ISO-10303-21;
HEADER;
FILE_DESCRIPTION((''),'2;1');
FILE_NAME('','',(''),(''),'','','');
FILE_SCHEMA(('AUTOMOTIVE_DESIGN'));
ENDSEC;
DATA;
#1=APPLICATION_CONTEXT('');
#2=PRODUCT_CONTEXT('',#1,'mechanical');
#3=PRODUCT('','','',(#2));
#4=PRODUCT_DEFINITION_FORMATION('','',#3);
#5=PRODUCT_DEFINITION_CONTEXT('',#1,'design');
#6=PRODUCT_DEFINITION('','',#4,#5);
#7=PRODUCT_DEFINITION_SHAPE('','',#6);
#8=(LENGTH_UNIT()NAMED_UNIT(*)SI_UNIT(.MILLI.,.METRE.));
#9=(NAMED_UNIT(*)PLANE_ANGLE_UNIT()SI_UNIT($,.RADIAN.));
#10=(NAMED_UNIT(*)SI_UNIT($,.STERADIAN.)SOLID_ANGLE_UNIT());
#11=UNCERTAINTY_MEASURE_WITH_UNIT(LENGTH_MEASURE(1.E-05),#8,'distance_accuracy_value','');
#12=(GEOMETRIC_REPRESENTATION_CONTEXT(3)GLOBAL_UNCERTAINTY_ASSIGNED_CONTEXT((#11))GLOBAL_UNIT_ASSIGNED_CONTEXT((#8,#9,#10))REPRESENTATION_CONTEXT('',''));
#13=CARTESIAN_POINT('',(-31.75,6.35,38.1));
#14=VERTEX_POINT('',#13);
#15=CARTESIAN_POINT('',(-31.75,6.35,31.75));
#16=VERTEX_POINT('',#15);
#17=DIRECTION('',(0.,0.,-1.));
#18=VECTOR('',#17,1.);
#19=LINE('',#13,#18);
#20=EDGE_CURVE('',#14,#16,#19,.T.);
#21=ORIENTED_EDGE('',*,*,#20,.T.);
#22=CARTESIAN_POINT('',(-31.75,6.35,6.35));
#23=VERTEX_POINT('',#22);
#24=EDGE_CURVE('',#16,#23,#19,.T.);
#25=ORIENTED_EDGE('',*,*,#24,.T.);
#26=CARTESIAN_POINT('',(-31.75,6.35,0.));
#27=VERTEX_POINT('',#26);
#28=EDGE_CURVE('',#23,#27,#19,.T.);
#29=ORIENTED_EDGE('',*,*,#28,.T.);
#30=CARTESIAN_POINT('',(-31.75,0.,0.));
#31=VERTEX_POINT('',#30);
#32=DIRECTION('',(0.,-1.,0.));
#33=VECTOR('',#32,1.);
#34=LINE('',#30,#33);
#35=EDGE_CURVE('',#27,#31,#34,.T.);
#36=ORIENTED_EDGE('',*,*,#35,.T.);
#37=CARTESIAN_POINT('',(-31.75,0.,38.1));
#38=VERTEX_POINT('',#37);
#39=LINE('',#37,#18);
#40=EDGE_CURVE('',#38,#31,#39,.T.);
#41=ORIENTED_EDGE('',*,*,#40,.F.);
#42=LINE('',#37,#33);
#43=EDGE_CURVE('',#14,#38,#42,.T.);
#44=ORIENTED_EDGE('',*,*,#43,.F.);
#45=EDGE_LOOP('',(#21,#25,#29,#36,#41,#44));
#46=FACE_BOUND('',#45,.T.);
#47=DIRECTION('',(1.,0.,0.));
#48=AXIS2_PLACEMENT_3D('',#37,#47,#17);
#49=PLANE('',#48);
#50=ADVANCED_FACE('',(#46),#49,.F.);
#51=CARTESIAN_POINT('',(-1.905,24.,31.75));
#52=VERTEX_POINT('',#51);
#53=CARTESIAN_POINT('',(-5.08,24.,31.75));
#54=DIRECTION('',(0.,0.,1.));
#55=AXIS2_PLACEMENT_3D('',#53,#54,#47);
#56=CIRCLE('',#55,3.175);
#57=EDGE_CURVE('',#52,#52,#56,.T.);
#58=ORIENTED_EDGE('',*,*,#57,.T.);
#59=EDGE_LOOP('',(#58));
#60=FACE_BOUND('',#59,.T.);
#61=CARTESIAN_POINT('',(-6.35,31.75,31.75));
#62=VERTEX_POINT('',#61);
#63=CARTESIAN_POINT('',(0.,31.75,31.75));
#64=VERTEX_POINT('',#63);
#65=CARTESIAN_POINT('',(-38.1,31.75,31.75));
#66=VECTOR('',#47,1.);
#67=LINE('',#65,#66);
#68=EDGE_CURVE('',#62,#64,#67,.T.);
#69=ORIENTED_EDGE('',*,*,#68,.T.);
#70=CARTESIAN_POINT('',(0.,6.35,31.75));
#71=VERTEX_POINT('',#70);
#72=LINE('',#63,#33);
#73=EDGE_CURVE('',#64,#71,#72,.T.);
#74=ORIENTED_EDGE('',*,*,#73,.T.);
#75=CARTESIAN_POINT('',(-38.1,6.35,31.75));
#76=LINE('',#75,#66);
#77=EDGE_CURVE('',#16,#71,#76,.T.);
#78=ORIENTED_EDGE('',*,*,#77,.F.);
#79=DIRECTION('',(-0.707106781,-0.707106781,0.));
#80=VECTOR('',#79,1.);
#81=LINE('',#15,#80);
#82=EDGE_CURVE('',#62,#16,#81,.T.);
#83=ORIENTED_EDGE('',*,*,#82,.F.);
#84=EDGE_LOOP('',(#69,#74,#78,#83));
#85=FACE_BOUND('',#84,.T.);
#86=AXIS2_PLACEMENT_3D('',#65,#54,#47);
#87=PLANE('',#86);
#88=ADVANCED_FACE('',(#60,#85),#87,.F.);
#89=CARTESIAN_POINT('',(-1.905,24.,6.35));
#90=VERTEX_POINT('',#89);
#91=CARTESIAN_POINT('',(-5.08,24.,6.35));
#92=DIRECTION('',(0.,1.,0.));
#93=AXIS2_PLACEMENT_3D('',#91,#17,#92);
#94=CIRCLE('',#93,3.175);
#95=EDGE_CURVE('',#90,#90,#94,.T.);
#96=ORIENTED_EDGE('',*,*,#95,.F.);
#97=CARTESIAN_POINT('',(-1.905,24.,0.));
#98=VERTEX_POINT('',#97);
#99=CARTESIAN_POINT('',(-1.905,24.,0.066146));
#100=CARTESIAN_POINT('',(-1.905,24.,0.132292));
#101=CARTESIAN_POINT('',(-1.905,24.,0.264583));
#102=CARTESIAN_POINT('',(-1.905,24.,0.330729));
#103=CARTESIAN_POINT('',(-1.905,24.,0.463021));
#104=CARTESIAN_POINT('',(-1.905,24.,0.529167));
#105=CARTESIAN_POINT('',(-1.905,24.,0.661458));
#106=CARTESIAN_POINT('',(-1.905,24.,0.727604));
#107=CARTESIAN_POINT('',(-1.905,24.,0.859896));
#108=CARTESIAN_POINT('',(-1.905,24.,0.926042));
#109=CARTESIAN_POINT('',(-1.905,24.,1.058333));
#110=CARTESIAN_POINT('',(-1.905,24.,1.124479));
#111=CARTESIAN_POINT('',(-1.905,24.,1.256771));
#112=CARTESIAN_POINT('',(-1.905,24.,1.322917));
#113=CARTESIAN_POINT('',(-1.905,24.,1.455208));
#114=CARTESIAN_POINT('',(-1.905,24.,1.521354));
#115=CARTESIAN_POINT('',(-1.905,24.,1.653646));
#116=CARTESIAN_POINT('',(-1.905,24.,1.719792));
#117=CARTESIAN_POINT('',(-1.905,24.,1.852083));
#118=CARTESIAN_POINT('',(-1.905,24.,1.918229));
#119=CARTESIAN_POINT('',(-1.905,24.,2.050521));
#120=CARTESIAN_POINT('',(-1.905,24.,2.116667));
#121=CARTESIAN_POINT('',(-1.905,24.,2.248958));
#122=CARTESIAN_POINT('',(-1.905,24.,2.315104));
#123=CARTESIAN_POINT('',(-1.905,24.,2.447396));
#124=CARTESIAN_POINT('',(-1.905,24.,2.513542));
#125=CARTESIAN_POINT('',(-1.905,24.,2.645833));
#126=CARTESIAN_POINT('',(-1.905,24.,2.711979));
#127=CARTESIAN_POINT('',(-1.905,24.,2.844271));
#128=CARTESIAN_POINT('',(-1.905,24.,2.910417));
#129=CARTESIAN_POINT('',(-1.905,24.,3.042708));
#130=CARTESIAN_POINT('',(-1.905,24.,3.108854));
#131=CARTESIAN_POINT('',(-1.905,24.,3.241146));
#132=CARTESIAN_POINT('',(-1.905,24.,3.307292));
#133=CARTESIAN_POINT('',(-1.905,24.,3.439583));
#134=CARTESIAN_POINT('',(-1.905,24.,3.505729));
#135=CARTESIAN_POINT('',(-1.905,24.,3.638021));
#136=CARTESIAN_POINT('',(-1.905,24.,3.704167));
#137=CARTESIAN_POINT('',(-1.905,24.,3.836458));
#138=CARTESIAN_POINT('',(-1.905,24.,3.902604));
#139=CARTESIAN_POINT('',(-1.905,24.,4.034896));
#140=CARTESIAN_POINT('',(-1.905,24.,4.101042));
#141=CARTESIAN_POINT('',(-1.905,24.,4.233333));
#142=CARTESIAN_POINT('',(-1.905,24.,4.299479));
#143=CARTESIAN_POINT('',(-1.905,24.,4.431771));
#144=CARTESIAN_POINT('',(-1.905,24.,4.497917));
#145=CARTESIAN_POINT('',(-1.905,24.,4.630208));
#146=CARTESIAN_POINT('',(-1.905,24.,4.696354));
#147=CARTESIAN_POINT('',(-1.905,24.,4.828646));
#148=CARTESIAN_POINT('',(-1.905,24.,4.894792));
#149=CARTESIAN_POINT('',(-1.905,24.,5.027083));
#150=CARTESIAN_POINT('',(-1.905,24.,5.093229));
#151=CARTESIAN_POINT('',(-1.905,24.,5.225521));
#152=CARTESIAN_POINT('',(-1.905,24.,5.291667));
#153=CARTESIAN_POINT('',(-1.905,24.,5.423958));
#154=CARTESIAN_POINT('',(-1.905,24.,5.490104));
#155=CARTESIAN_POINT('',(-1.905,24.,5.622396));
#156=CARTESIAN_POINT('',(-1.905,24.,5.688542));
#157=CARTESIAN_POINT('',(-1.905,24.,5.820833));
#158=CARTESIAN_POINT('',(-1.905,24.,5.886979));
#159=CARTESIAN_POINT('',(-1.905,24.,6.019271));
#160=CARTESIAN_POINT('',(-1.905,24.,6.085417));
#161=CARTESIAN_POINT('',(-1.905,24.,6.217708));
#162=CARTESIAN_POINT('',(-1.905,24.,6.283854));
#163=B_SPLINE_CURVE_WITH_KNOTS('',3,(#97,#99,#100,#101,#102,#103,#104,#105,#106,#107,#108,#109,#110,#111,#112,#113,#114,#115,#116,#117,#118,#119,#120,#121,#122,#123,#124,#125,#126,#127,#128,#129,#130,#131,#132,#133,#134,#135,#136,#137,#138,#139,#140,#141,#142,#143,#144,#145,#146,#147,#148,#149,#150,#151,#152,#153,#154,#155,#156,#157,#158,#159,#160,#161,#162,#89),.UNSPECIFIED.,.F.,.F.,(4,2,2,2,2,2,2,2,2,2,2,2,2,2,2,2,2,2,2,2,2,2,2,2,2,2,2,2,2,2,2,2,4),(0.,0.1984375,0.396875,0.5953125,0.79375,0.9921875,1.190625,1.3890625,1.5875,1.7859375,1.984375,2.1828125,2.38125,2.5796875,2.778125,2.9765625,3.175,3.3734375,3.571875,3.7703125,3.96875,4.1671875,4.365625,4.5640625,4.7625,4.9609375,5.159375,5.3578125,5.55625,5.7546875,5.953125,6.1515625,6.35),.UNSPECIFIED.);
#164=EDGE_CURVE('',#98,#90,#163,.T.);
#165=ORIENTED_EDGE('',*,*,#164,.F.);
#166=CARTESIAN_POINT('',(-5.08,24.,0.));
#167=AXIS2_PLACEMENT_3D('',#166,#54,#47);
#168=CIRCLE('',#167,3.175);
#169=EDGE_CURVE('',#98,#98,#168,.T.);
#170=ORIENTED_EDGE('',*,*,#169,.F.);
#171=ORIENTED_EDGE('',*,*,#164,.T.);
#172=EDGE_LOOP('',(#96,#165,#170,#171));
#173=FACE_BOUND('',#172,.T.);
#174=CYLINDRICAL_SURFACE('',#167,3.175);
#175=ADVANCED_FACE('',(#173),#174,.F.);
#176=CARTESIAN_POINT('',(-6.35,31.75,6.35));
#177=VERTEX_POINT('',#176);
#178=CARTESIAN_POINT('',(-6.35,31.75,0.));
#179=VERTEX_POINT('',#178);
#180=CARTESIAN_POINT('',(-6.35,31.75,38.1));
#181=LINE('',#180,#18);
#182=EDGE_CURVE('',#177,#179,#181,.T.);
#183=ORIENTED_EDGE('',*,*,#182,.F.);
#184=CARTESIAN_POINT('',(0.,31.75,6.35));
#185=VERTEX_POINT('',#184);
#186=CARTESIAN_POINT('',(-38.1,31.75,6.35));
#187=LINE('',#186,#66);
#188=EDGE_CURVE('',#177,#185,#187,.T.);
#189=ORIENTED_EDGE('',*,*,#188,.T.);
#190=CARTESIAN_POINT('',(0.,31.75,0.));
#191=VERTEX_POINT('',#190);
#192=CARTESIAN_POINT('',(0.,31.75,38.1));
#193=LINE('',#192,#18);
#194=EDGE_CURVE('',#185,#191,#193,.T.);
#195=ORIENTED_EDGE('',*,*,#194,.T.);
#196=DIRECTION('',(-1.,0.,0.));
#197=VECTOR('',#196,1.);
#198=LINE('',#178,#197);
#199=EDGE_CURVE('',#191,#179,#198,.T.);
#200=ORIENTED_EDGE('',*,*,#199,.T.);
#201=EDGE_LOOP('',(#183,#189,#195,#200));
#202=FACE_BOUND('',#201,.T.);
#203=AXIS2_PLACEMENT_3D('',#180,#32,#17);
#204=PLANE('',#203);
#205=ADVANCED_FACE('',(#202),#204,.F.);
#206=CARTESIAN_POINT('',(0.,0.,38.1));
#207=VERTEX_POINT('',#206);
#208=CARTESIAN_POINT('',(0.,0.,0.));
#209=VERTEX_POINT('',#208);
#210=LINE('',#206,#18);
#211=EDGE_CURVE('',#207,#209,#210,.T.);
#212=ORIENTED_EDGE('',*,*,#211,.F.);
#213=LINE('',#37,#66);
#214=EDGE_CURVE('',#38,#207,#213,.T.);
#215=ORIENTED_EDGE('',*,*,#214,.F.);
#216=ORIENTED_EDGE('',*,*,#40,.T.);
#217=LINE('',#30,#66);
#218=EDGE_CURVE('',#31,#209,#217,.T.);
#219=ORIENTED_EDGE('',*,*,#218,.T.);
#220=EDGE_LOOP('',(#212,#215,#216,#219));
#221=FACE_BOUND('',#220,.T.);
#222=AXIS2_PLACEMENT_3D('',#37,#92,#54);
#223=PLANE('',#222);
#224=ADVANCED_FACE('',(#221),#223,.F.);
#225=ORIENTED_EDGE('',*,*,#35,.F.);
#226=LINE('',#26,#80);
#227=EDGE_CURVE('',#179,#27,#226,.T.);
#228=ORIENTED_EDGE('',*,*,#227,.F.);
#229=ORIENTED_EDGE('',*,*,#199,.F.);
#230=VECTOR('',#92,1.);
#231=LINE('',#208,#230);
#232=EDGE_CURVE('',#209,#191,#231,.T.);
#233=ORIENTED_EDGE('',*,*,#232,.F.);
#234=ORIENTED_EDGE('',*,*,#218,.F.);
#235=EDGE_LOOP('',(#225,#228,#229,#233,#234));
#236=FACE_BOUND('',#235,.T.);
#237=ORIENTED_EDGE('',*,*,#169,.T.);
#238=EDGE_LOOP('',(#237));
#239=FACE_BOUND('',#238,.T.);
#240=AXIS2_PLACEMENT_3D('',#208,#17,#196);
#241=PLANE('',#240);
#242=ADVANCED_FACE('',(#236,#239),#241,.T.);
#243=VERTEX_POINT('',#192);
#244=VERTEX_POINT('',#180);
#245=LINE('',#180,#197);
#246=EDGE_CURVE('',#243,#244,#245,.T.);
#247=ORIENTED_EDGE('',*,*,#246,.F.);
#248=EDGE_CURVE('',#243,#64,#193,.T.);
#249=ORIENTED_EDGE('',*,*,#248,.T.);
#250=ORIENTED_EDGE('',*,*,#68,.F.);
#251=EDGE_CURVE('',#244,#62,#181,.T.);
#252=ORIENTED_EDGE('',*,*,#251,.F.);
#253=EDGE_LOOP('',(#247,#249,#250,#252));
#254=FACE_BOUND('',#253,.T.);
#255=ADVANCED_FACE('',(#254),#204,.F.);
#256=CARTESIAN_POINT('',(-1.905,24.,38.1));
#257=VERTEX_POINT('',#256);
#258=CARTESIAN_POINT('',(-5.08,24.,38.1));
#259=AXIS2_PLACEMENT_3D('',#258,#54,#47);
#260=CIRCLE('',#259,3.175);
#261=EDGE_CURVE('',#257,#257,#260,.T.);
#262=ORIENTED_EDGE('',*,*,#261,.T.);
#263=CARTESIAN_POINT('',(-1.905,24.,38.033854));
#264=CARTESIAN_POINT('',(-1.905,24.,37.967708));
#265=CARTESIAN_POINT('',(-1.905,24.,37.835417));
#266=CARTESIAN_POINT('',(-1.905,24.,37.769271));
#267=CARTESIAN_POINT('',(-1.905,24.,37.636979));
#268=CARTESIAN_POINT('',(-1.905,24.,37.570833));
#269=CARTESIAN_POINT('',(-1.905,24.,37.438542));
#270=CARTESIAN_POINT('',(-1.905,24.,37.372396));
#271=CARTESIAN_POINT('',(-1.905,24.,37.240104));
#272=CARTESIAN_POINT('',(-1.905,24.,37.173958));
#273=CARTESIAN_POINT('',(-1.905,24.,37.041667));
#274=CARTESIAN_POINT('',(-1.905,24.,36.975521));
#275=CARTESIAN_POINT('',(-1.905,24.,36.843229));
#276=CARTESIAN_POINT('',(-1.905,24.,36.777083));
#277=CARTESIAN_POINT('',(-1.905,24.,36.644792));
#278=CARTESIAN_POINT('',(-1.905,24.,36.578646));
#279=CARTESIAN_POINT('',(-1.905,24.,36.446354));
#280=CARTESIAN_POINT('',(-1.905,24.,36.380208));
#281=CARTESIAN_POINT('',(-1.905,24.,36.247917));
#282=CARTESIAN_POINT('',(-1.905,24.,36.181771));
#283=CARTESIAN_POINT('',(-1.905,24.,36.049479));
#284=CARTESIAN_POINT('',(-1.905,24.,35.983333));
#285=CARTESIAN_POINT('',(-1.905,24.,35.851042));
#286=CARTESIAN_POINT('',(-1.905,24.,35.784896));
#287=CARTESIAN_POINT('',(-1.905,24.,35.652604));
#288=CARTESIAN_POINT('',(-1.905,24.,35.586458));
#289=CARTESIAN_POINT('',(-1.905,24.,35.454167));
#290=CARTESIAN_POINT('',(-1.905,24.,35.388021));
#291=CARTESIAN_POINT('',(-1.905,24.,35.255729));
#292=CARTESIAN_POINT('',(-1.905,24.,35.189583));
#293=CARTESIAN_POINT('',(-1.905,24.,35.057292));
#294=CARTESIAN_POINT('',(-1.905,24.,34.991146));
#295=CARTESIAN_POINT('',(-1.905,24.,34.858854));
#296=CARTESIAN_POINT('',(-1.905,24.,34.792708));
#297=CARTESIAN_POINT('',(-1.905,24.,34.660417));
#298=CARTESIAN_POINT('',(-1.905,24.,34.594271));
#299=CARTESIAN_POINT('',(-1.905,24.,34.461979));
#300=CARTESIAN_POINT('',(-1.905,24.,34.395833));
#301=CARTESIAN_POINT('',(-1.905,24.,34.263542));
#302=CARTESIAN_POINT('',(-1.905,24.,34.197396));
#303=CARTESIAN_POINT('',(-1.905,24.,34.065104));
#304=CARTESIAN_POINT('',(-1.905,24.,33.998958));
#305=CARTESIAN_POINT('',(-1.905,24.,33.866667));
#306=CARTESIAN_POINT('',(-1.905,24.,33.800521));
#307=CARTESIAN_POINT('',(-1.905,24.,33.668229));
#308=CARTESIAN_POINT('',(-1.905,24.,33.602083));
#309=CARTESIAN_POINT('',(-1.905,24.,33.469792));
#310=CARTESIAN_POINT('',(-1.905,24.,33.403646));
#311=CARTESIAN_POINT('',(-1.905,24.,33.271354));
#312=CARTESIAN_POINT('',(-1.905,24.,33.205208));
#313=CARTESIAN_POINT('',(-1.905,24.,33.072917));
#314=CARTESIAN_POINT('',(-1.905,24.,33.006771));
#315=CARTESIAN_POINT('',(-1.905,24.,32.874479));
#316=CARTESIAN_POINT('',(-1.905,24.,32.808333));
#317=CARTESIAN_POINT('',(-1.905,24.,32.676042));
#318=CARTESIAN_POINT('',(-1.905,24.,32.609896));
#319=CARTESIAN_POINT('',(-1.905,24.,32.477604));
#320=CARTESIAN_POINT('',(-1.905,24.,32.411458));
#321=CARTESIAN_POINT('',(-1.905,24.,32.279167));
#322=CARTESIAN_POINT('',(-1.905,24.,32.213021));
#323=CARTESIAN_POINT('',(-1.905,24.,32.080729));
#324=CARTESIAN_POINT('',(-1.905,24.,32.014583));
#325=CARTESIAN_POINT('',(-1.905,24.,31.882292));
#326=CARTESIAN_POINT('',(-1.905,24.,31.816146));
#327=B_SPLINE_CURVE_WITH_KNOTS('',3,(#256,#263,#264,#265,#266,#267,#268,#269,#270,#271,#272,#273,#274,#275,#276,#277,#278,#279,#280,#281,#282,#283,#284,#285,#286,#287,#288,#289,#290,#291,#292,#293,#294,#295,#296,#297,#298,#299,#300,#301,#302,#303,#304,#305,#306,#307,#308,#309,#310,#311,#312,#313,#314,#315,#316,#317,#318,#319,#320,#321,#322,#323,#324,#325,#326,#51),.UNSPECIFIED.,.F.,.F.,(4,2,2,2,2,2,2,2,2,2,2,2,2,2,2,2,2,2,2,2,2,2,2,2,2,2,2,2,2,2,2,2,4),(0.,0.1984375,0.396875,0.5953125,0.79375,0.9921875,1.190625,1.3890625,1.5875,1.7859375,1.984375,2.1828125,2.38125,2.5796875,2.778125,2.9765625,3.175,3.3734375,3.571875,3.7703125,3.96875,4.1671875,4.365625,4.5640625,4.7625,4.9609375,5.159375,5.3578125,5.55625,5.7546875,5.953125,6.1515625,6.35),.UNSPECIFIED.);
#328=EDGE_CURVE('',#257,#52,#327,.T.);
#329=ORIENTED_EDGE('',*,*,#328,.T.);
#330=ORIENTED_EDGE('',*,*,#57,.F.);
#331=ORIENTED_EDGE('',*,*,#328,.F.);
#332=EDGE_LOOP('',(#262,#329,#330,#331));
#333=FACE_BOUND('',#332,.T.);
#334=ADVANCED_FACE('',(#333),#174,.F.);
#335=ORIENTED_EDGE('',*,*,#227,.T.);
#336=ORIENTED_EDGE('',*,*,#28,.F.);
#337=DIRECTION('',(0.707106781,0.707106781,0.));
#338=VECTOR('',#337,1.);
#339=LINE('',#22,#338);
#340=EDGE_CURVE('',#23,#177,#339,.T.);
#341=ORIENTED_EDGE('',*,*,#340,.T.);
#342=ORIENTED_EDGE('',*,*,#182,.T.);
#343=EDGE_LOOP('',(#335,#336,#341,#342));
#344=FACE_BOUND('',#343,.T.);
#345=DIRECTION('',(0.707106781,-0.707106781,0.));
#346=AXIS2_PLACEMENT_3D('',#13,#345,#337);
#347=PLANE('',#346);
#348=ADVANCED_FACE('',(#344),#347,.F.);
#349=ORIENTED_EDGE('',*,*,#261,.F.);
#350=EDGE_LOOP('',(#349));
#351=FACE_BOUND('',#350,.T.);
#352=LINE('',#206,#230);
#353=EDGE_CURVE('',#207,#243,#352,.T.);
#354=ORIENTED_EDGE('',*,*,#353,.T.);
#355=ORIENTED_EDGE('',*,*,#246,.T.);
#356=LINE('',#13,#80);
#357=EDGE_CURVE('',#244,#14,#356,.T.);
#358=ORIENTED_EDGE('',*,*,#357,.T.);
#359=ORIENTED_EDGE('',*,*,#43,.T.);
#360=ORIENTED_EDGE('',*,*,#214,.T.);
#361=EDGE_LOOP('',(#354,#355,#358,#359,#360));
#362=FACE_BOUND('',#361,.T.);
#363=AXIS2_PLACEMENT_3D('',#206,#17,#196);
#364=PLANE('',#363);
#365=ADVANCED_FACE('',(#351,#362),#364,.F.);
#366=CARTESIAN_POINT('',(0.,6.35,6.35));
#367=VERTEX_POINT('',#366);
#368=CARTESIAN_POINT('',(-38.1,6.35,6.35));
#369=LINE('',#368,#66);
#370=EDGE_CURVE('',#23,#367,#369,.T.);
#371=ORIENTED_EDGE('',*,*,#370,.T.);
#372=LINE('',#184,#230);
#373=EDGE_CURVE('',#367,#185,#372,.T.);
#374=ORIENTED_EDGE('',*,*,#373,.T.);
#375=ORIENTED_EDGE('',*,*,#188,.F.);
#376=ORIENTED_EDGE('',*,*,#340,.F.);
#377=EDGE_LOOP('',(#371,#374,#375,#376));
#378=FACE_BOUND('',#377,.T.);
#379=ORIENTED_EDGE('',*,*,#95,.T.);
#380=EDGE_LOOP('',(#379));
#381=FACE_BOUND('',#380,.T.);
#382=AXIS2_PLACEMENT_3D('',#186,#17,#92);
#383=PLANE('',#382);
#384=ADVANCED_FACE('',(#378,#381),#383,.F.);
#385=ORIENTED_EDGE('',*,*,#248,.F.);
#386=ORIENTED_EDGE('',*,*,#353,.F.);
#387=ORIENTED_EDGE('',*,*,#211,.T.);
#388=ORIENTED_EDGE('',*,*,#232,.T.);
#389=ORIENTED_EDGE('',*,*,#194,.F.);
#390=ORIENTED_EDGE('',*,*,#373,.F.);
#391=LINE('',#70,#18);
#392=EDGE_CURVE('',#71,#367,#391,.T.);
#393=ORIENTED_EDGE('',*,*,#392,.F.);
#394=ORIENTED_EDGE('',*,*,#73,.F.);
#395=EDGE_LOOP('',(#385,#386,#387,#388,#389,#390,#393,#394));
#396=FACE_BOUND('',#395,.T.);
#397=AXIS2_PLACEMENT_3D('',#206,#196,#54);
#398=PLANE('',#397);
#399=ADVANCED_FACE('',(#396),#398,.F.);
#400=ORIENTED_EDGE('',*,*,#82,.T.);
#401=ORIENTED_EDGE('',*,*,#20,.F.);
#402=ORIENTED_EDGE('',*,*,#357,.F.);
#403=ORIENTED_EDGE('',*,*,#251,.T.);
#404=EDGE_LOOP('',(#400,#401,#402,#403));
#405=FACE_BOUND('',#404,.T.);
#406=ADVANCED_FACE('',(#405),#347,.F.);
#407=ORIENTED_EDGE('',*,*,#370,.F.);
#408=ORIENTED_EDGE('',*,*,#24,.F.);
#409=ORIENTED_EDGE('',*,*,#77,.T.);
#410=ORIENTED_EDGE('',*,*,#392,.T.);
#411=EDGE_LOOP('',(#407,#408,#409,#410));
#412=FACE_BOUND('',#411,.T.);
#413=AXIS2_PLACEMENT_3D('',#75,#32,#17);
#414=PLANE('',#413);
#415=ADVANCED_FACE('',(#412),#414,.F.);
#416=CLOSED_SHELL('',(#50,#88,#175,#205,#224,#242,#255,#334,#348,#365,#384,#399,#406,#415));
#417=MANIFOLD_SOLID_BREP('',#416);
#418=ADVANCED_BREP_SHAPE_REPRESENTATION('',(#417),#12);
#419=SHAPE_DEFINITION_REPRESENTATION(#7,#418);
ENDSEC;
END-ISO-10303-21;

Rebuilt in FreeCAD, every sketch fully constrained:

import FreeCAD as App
import Part
import Sketcher
Q = App.Units.Quantity

doc = App.newDocument("Part")
body = doc.addObject("PartDesign::Body", "Body")

sketch1 = body.newObject("Sketcher::SketchObject", "Sketch")
sketch1.AttachmentSupport = (doc.getObject("XY_Plane"), [""])
sketch1.MapMode = "FlatFace"
sketch1.addGeometry([
    Part.LineSegment(App.Vector(-31.75, 0, 0), App.Vector(0, 0, 0)),
    Part.LineSegment(App.Vector(0, 0, 0), App.Vector(0, 31.75, 0)),
    Part.LineSegment(App.Vector(0, 31.75, 0), App.Vector(-6.35, 31.75, 0)),
    Part.LineSegment(App.Vector(-6.35, 31.75, 0), App.Vector(-31.75, 6.35, 0)),
    Part.LineSegment(App.Vector(-31.75, 6.35, 0), App.Vector(-31.75, 0, 0)),
], False)
sketch1.addConstraint([
    Sketcher.Constraint("Coincident", 0, 2, 1, 1),
    Sketcher.Constraint("Coincident", 1, 2, 2, 1),
    Sketcher.Constraint("Coincident", 2, 2, 3, 1),
    Sketcher.Constraint("Coincident", 3, 2, 4, 1),
    Sketcher.Constraint("Coincident", 4, 2, 0, 1),
    Sketcher.Constraint("Horizontal", 0),
    Sketcher.Constraint("Vertical", 1),
    Sketcher.Constraint("Horizontal", 2),
    Sketcher.Constraint("Vertical", 4),
    Sketcher.Constraint("Coincident", 0, 2, -1, 1),
    Sketcher.Constraint("Equal", 0, 1),
    Sketcher.Constraint("Equal", 2, 4),
    Sketcher.Constraint("DistanceX", 3, 2, 2, 2, Q("1 in")),
    Sketcher.Constraint("DistanceX", 0, 1, 0, 2, Q("1.25 in")),
])
pad1 = body.newObject("PartDesign::Pad", "Pad")
pad1.Profile = sketch1
pad1.Length = Q("1.5 in")

sketch2 = body.newObject("Sketcher::SketchObject", "Sketch001")
sketch2.AttachmentSupport = (doc.getObject("YZ_Plane"), [""])
sketch2.MapMode = "FlatFace"
sketch2.addGeometry([
    Part.LineSegment(App.Vector(31.75, 31.75, 0), App.Vector(6.35, 31.75, 0)),
    Part.LineSegment(App.Vector(6.35, 31.75, 0), App.Vector(6.35, 6.35, 0)),
    Part.LineSegment(App.Vector(6.35, 6.35, 0), App.Vector(31.75, 6.35, 0)),
    Part.LineSegment(App.Vector(31.75, 6.35, 0), App.Vector(31.75, 31.75, 0)),
], False)
sketch2.addConstraint([
    Sketcher.Constraint("Coincident", 0, 2, 1, 1),
    Sketcher.Constraint("Coincident", 1, 2, 2, 1),
    Sketcher.Constraint("Coincident", 2, 2, 3, 1),
    Sketcher.Constraint("Coincident", 3, 2, 0, 1),
    Sketcher.Constraint("Horizontal", 0),
    Sketcher.Constraint("Vertical", 1),
    Sketcher.Constraint("Horizontal", 2),
    Sketcher.Constraint("Vertical", 3),
    Sketcher.Constraint("Equal", 2, 1),
    Sketcher.Constraint("DistanceX", 0, 2, 0, 1, Q("1 in")),
    Sketcher.Constraint("DistanceX", -1, 1, 0, 2, Q("0.25 in")),
    Sketcher.Constraint("DistanceY", -1, 1, 0, 2, Q("1.25 in")),
])
pocket1 = body.newObject("PartDesign::Pocket", "Pocket")
pocket1.Profile = sketch2
pocket1.Length = Q("1.5 in")

sketch3 = body.newObject("Sketcher::SketchObject", "Sketch002")
sketch3.AttachmentSupport = (doc.getObject("XY_Plane"), [""])
sketch3.MapMode = "FlatFace"
sketch3.AttachmentOffset = App.Placement(App.Vector(0, 0, 1.5 * 25.4), App.Rotation())
sketch3.addGeometry(Part.Circle(App.Vector(-5.08, 24, 0), App.Vector(0, 0, 1), 3.175), False)
sketch3.addConstraint([
    Sketcher.Constraint("Diameter", 0, Q("0.25 in")),
    Sketcher.Constraint("DistanceX", 0, 3, -1, 1, Q("0.2 in")),
    Sketcher.Constraint("DistanceY", -1, 1, 0, 3, Q("24 mm")),
])
pocket2 = body.newObject("PartDesign::Pocket", "Pocket001")
pocket2.Profile = sketch3
pocket2.Length = Q("1.5 in")

doc.recompute()
